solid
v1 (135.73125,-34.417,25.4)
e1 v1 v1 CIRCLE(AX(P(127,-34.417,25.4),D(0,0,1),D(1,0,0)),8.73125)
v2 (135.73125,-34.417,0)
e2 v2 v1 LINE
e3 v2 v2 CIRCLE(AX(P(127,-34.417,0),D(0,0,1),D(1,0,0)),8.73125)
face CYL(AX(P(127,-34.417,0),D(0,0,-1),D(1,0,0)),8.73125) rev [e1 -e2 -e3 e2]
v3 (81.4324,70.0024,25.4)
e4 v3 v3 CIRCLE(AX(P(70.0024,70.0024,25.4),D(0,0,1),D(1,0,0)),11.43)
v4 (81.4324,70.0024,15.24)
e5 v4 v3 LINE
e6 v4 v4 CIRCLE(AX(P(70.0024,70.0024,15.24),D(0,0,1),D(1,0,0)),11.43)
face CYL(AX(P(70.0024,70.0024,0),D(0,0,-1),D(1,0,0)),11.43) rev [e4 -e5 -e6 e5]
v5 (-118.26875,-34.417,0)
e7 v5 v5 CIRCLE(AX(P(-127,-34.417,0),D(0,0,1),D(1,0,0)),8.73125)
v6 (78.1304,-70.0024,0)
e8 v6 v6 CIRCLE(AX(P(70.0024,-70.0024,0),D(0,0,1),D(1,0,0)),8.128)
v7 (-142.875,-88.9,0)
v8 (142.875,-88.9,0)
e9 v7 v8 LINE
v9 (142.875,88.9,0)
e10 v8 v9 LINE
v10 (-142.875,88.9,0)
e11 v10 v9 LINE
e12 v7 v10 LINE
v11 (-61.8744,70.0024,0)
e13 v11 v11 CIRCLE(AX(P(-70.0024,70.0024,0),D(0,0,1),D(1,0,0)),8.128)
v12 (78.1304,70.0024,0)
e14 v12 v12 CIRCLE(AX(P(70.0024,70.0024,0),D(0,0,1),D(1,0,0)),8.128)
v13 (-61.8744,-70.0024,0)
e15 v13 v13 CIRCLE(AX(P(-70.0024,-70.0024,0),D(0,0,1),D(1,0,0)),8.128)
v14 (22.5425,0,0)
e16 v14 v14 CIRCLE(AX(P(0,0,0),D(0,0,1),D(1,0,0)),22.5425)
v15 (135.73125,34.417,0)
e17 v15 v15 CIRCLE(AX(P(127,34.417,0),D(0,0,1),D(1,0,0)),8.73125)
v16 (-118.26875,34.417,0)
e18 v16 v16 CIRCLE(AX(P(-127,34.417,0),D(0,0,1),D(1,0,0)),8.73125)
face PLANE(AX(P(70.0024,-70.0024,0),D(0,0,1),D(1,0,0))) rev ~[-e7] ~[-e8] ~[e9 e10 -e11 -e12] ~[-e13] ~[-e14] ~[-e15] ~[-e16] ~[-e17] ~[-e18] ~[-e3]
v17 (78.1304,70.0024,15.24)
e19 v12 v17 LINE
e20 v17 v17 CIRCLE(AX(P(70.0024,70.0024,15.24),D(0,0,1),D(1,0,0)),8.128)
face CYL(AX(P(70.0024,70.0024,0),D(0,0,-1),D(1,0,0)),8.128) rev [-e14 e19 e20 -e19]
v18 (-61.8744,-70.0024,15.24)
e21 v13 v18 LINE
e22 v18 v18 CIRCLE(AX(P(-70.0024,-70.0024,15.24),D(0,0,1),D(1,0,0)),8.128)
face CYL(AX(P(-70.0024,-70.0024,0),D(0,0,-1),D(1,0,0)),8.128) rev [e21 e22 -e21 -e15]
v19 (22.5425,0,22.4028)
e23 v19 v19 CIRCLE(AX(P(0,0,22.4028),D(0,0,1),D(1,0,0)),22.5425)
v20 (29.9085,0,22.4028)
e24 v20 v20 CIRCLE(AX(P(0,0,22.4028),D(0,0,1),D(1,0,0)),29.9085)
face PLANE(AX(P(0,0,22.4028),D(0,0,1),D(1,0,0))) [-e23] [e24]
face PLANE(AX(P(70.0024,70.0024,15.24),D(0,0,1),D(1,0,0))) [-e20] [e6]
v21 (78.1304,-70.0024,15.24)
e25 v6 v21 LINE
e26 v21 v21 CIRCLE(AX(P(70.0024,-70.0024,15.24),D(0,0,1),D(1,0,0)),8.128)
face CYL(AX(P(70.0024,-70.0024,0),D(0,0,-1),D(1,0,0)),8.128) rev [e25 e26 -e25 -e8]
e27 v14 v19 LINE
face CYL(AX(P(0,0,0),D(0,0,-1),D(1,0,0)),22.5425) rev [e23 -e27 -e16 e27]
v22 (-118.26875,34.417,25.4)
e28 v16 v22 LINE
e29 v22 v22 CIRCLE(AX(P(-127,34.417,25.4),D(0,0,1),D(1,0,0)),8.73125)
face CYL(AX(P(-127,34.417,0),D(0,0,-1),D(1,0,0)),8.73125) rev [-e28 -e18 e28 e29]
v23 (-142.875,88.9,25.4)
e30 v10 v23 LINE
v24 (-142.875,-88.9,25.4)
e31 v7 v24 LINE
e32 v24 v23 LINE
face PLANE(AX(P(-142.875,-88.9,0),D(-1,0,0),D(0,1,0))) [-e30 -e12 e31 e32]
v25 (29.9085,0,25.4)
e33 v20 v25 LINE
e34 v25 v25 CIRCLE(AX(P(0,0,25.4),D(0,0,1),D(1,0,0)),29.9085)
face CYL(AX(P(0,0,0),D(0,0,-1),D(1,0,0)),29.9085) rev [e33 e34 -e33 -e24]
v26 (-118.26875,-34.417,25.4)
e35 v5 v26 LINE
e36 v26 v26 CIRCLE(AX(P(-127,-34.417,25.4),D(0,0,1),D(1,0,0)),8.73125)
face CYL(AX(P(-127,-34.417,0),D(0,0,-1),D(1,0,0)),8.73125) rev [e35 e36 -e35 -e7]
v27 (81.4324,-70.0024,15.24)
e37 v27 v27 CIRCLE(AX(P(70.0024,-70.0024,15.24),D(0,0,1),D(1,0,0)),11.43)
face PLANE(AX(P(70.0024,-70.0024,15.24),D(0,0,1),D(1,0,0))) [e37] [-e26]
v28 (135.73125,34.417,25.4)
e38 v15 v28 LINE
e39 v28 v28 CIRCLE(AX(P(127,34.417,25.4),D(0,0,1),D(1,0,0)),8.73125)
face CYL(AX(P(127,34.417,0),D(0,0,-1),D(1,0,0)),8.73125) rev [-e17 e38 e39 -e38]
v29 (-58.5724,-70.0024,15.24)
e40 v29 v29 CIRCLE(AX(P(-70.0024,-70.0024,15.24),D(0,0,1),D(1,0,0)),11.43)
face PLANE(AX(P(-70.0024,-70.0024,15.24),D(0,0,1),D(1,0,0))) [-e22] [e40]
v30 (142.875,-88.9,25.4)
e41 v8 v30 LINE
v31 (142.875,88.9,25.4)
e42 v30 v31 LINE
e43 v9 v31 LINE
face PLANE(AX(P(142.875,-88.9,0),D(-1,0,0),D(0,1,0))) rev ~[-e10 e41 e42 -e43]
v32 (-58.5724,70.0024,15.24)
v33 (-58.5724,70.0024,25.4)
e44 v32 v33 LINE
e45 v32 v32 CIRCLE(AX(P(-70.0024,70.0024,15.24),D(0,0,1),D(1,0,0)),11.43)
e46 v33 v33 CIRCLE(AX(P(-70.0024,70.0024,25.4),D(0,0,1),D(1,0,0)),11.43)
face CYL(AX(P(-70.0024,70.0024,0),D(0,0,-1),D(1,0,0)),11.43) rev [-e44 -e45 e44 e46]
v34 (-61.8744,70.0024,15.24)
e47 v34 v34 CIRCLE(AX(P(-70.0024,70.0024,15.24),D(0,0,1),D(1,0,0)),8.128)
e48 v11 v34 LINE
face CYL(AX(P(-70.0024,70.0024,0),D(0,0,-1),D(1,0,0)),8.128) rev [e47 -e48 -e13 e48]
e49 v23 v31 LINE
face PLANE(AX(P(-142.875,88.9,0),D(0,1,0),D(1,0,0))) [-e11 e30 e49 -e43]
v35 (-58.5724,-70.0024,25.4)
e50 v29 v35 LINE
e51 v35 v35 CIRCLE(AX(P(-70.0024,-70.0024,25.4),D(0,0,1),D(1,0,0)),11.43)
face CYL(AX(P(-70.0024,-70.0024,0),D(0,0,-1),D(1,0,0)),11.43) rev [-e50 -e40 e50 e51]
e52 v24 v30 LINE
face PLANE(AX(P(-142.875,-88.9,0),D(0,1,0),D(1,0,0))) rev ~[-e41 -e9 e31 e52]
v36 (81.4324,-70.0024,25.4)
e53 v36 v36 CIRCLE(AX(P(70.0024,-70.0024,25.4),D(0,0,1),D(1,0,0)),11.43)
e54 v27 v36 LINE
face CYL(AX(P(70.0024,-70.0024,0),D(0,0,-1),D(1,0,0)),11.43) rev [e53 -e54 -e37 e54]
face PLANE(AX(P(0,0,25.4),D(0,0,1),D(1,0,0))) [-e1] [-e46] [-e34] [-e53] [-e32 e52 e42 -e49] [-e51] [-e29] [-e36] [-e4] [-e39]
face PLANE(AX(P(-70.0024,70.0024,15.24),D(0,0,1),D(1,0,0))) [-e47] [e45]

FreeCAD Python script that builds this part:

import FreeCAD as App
import Part
import Sketcher

V = App.Vector
Q = App.Units.Quantity

doc = App.newDocument("Part")
body = doc.addObject("PartDesign::Body", "Body")

# Sketch on XY plane
sketch1 = body.newObject("Sketcher::SketchObject", "Sketch")
sketch1.AttachmentSupport = (doc.getObject("XY_Plane"), [""])
sketch1.MapMode = "FlatFace"
sketch1.addGeometry([
    Part.LineSegment(V(-143, 89, 0), V(-143, -89, 0)),  # 0
    Part.LineSegment(V(-143, -89, 0), V(143, -89, 0)),  # 1
    Part.LineSegment(V(143, -89, 0), V(143, 89, 0)),  # 2
    Part.LineSegment(V(143, 89, 0), V(-143, 89, 0)),  # 3
    Part.Circle(V(-70, -70, 0), V(0, 0, 1), 11),  # 4
    Part.Circle(V(-127, -34, 0), V(0, 0, 1), 9),  # 5
    Part.Circle(V(70, -70, 0), V(0, 0, 1), 11),  # 6
    Part.Circle(V(127, -34, 0), V(0, 0, 1), 9),  # 7
    Part.Circle(V(-127, 34, 0), V(0, 0, 1), 9),  # 8
    Part.Circle(V(-70, 70, 0), V(0, 0, 1), 11),  # 9
    Part.Circle(V(0, 0, 0), V(0, 0, 1), 30),  # 10
    Part.Circle(V(127, 34, 0), V(0, 0, 1), 9),  # 11
    Part.Circle(V(70, 70, 0), V(0, 0, 1), 11),  # 12
], False)
sketch1.addConstraint([
    Sketcher.Constraint("Coincident", 0, 2, 1, 1),
    Sketcher.Constraint("Coincident", 1, 2, 2, 1),
    Sketcher.Constraint("Coincident", 2, 2, 3, 1),
    Sketcher.Constraint("Coincident", 3, 2, 0, 1),
    Sketcher.Constraint("Vertical", 0),
    Sketcher.Constraint("Horizontal", 1),
    Sketcher.Constraint("Vertical", 2),
    Sketcher.Constraint("Horizontal", 3),
    Sketcher.Constraint("Coincident", 10, 3, -1, 1),
    Sketcher.Constraint("Equal", 4, 6),
    Sketcher.Constraint("Equal", 5, 7),
    Sketcher.Constraint("Equal", 7, 8),
    Sketcher.Constraint("Equal", 6, 9),
    Sketcher.Constraint("Equal", 8, 11),
    Sketcher.Constraint("Equal", 9, 12),
    Sketcher.Constraint("Symmetric", 7, 3, 8, 3, -1, 1),
    Sketcher.Constraint("Symmetric", 6, 3, 9, 3, -1, 1),
    Sketcher.Constraint("Symmetric", 5, 3, 11, 3, -1, 1),
    Sketcher.Constraint("Symmetric", 4, 3, 12, 3, -1, 1),
    Sketcher.Constraint("Symmetric", 0, 2, 2, 2, -1, 1),
    Sketcher.Constraint("Symmetric", 4, 3, 6, 3, -2),
    Sketcher.Constraint("Symmetric", 5, 3, 7, 3, -2),
    Sketcher.Constraint("Diameter", 4, Q("0.9 in")),
    Sketcher.Constraint("DistanceY", 0, 2, 0, 1, Q("7 in")),
    Sketcher.Constraint("Diameter", 5, Q("0.6875 in")),
    Sketcher.Constraint("Diameter", 10, Q("2.355 in")),
    Sketcher.Constraint("DistanceX", 5, 3, -1, 1, Q("5 in")),
    Sketcher.Constraint("DistanceX", 1, 1, 1, 2, Q("11.25 in")),
    Sketcher.Constraint("DistanceY", 5, 3, 8, 3, Q("2.71 in")),
    Sketcher.Constraint("DistanceX", 4, 3, -1, 1, Q("2.756 in")),
    Sketcher.Constraint("DistanceY", 4, 3, -1, 1, Q("2.756 in")),
])
pad1 = body.newObject("PartDesign::Pad", "Pad")
pad1.Profile = sketch1
pad1.Length = Q("1 in")

# Sketch on XY plane
sketch2 = body.newObject("Sketcher::SketchObject", "Sketch001")
sketch2.AttachmentSupport = (doc.getObject("XY_Plane"), [""])
sketch2.MapMode = "FlatFace"
sketch2.addGeometry([
    Part.Circle(V(0, 0, 0), V(0, 0, 1), 30),
    Part.Circle(V(0, 0, 0), V(0, 0, 1), 23),
], False)
sketch2.addConstraint([
    Sketcher.Constraint("Coincident", 0, 3, -1, 1),
    Sketcher.Constraint("Coincident", 1, 3, -1, 1),
    Sketcher.Constraint("Diameter", 0, Q("2.355 in")),
    Sketcher.Constraint("Diameter", 1, Q("1.775 in")),
])
pad2 = body.newObject("PartDesign::Pad", "Pad001")
pad2.Profile = sketch2
pad2.Length = Q("0.882 in")

# Sketch on XY plane
sketch3 = body.newObject("Sketcher::SketchObject", "Sketch002")
sketch3.AttachmentSupport = (doc.getObject("XY_Plane"), [""])
sketch3.MapMode = "FlatFace"
sketch3.addGeometry([
    Part.Circle(V(-70, 70, 0), V(0, 0, 1), 11),
    Part.Circle(V(-70, 70, 0), V(0, 0, 1), 8),
], False)
sketch3.addConstraint([
    Sketcher.Constraint("Coincident", 1, 3, 0, 3),
    Sketcher.Constraint("Diameter", 0, Q("0.9 in")),
    Sketcher.Constraint("Diameter", 1, Q("0.64 in")),
    Sketcher.Constraint("DistanceX", 0, 3, -1, 1, Q("2.756 in")),
    Sketcher.Constraint("DistanceY", -1, 1, 0, 3, Q("2.756 in")),
])
pad3 = body.newObject("PartDesign::Pad", "Pad002")
pad3.Profile = sketch3
pad3.Length = Q("0.6 in")

# Sketch on XY plane
sketch4 = body.newObject("Sketcher::SketchObject", "Sketch003")
sketch4.AttachmentSupport = (doc.getObject("XY_Plane"), [""])
sketch4.MapMode = "FlatFace"
sketch4.addGeometry([
    Part.Circle(V(70, 70, 0), V(0, 0, 1), 11),
    Part.Circle(V(70, 70, 0), V(0, 0, 1), 8),
], False)
sketch4.addConstraint([
    Sketcher.Constraint("Coincident", 1, 3, 0, 3),
    Sketcher.Constraint("Diameter", 0, Q("0.9 in")),
    Sketcher.Constraint("Diameter", 1, Q("0.64 in")),
    Sketcher.Constraint("DistanceX", -1, 1, 0, 3, Q("2.756 in")),
    Sketcher.Constraint("DistanceY", -1, 1, 0, 3, Q("2.756 in")),
])
pad4 = body.newObject("PartDesign::Pad", "Pad003")
pad4.Profile = sketch4
pad4.Length = Q("0.6 in")

# Sketch on XY plane
sketch5 = body.newObject("Sketcher::SketchObject", "Sketch004")
sketch5.AttachmentSupport = (doc.getObject("XY_Plane"), [""])
sketch5.MapMode = "FlatFace"
sketch5.addGeometry([
    Part.Circle(V(-70, -70, 0), V(0, 0, 1), 11),
    Part.Circle(V(-70, -70, 0), V(0, 0, 1), 8),
], False)
sketch5.addConstraint([
    Sketcher.Constraint("Coincident", 1, 3, 0, 3),
    Sketcher.Constraint("Diameter", 0, Q("0.9 in")),
    Sketcher.Constraint("Diameter", 1, Q("0.64 in")),
    Sketcher.Constraint("DistanceX", 0, 3, -1, 1, Q("2.756 in")),
    Sketcher.Constraint("DistanceY", 0, 3, -1, 1, Q("2.756 in")),
])
pad5 = body.newObject("PartDesign::Pad", "Pad004")
pad5.Profile = sketch5
pad5.Length = Q("0.6 in")

# Sketch on XY plane
sketch6 = body.newObject("Sketcher::SketchObject", "Sketch005")
sketch6.AttachmentSupport = (doc.getObject("XY_Plane"), [""])
sketch6.MapMode = "FlatFace"
sketch6.addGeometry([
    Part.Circle(V(70, -70, 0), V(0, 0, 1), 11),
    Part.Circle(V(70, -70, 0), V(0, 0, 1), 8),
], False)
sketch6.addConstraint([
    Sketcher.Constraint("Coincident", 1, 3, 0, 3),
    Sketcher.Constraint("Diameter", 0, Q("0.9 in")),
    Sketcher.Constraint("Diameter", 1, Q("0.64 in")),
    Sketcher.Constraint("DistanceX", -1, 1, 0, 3, Q("2.756 in")),
    Sketcher.Constraint("DistanceY", 0, 3, -1, 1, Q("2.756 in")),
])
pad6 = body.newObject("PartDesign::Pad", "Pad005")
pad6.Profile = sketch6
pad6.Length = Q("0.6 in")

doc.recompute()
